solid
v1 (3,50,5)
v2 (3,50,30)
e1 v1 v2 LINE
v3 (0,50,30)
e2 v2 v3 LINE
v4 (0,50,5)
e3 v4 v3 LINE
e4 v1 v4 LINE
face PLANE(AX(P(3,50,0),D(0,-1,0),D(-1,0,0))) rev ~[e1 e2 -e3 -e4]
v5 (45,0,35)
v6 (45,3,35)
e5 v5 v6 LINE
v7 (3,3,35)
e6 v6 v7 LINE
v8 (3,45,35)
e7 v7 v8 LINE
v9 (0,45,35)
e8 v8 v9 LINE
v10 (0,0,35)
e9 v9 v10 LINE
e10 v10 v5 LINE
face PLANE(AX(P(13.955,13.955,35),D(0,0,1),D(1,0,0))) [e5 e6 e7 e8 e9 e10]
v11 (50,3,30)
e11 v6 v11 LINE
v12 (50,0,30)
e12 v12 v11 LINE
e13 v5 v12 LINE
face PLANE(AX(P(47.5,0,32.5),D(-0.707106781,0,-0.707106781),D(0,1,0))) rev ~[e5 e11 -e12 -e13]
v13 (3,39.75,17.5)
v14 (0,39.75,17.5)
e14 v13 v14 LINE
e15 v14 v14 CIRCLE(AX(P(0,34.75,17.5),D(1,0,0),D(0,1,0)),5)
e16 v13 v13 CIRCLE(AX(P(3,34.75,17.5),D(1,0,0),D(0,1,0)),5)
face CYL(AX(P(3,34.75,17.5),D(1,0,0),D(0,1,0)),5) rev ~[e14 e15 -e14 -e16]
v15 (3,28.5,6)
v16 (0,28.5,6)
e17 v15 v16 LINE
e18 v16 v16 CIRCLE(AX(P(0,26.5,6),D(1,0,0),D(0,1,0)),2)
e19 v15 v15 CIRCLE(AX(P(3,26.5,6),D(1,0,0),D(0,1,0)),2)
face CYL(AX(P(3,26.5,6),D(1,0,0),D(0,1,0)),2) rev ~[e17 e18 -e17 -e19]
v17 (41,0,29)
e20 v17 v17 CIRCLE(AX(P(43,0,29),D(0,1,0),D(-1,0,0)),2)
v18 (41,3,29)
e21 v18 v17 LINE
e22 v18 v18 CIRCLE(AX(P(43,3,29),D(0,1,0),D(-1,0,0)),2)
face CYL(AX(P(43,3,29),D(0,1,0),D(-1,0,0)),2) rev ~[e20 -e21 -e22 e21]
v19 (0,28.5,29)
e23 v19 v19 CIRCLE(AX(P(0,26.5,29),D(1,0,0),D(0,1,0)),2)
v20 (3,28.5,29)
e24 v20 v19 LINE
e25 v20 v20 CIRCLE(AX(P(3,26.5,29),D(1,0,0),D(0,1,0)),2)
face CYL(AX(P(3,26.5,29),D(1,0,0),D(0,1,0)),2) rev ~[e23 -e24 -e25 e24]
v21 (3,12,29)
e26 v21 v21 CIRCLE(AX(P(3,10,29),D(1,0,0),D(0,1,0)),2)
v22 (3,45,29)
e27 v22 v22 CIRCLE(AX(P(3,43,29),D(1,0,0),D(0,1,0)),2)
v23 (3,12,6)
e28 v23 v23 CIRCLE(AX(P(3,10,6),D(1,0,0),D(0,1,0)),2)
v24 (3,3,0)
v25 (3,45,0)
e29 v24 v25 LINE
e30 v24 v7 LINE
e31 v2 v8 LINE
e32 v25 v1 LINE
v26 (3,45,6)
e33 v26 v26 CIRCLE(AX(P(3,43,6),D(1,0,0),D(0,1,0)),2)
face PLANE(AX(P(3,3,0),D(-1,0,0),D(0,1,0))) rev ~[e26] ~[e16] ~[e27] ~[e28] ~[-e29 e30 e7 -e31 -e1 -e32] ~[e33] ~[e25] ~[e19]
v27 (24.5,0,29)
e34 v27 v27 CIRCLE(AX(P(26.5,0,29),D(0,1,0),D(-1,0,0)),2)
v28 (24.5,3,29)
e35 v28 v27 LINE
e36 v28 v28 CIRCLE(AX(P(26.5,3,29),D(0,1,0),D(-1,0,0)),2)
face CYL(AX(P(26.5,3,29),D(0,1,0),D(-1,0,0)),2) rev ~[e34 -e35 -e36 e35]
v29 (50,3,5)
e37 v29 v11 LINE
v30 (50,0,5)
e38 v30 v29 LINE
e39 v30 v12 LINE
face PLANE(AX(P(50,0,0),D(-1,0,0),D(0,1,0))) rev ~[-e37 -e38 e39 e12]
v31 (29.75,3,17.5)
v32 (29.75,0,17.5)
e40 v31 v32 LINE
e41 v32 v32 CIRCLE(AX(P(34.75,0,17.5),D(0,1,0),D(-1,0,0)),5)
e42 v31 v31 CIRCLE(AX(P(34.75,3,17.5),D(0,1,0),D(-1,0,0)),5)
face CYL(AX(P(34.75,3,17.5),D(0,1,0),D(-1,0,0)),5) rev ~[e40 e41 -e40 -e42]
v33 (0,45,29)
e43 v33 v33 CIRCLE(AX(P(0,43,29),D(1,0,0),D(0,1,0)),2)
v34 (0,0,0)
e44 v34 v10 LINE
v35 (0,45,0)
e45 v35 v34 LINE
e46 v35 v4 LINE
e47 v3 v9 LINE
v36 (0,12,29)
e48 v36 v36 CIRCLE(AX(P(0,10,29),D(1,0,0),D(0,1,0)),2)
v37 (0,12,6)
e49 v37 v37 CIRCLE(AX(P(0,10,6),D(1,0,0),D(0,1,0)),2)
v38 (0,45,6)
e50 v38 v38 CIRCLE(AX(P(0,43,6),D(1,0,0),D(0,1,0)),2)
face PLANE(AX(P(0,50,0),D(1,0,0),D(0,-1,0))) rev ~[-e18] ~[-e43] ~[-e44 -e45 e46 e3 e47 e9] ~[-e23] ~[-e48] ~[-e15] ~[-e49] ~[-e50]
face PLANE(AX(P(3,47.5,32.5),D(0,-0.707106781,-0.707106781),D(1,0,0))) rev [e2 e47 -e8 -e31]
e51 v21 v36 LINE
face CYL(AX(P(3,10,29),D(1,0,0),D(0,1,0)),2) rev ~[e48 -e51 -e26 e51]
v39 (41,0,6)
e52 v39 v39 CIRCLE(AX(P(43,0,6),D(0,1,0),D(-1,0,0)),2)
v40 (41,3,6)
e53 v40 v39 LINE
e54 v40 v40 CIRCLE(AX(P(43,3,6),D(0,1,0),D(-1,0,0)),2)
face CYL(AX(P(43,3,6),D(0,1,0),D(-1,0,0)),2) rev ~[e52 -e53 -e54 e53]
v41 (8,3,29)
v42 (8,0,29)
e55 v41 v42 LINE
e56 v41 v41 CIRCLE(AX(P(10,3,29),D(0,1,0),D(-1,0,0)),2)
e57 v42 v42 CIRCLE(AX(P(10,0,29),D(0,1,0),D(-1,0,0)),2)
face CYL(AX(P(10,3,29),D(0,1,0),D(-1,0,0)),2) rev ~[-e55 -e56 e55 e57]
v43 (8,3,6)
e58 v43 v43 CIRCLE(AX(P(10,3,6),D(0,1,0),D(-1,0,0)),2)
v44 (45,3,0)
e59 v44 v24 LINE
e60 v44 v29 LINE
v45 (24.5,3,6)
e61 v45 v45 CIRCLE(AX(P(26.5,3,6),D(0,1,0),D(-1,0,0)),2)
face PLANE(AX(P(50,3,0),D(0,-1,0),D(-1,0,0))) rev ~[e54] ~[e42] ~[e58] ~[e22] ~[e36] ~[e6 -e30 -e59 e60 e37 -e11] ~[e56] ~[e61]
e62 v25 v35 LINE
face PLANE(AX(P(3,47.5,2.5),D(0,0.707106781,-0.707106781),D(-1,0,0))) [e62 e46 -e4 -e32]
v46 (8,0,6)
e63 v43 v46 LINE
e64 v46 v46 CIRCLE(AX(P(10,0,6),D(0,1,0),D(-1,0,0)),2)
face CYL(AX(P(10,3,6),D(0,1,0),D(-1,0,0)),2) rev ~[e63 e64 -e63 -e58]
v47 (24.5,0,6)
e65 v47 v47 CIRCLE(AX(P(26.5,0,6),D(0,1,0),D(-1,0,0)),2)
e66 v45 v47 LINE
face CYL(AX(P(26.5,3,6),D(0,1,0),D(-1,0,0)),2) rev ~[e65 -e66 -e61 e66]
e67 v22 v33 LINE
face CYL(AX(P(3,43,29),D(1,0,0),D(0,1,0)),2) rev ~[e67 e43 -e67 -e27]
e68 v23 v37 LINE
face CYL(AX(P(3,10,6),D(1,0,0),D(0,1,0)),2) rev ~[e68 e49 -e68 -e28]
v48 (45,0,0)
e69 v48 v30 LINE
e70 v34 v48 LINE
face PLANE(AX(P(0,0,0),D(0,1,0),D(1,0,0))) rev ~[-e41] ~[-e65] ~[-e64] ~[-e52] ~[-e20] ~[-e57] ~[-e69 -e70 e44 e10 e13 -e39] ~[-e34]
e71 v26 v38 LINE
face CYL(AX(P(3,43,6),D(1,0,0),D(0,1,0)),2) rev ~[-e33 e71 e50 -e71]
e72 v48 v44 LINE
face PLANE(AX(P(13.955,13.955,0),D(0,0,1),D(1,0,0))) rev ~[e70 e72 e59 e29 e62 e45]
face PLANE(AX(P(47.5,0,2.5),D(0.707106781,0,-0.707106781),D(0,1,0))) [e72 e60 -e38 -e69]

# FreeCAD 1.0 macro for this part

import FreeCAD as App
import Part
import Sketcher


def edges_at(feature, points):
    """Names of the edges that pass closest to the given points."""
    edges = feature.Shape.Edges
    near = lambda p: min(range(len(edges)), key=lambda i: edges[i].distToShape(Part.Vertex(*p))[0])
    return sorted({f"Edge{near(p) + 1}" for p in points})

doc = App.newDocument("Part")
params = doc.addObject("Spreadsheet::Sheet", "Params")
for row, (alias, value) in enumerate([
    ("sketch1_width", "50 mm"),
    ("sketch1_width2", "47 mm"),
    ("pad1_length", "35 mm"),
    ("sketch2_diameter", "10 mm"),
    ("sketch2_diameter2", "4 mm"),
    ("sketch3_diameter", "10 mm"),
    ("sketch3_diameter2", "4 mm"),
    ("chamfer_size", "5 mm"),
    ("chamfer2_size", "5 mm"),
], start=1):
    params.set(f"A{row}", alias)
    params.set(f"B{row}", "=" + value)
    params.setAlias(f"B{row}", alias)

body = doc.addObject("PartDesign::Body", "Body")

sketch1 = doc.addObject("Sketcher::SketchObject", "Sketch")
body.addObject(sketch1)
sketch1.AttachmentSupport = (doc.XY_Plane, [""])
sketch1.MapMode = "FlatFace"
sketch1.addGeometry([
    Part.LineSegment(App.Vector(0, 50, 0), App.Vector(0, 0, 0)),
    Part.LineSegment(App.Vector(0, 0, 0), App.Vector(50, 0, 0)),
    Part.LineSegment(App.Vector(50, 0, 0), App.Vector(50, 3, 0)),
    Part.LineSegment(App.Vector(50, 3, 0), App.Vector(3, 3, 0)),
    Part.LineSegment(App.Vector(3, 3, 0), App.Vector(3, 50, 0)),
    Part.LineSegment(App.Vector(3, 50, 0), App.Vector(0, 50, 0)),
], False)
sketch1.addConstraint([
    Sketcher.Constraint("Coincident", 0, 2, 1, 1),
    Sketcher.Constraint("Coincident", 1, 2, 2, 1),
    Sketcher.Constraint("Coincident", 2, 2, 3, 1),
    Sketcher.Constraint("Coincident", 3, 2, 4, 1),
    Sketcher.Constraint("Coincident", 4, 2, 5, 1),
    Sketcher.Constraint("Coincident", 5, 2, 0, 1),
    Sketcher.Constraint("Vertical", 0),
    Sketcher.Constraint("Horizontal", 1),
    Sketcher.Constraint("Vertical", 2),
    Sketcher.Constraint("Horizontal", 3),
    Sketcher.Constraint("Vertical", 4),
    Sketcher.Constraint("Horizontal", 5),
    Sketcher.Constraint("Coincident", 0, 2, -1, 1),
    Sketcher.Constraint("Equal", 1, 0),
    Sketcher.Constraint("Equal", 5, 2),
    Sketcher.Constraint("DistanceX", 1, 1, 1, 2, 50.0),
    Sketcher.Constraint("DistanceX", 3, 2, 3, 1, 47.0),
])
sketch1.setExpression("Constraints[15]", "Params.sketch1_width")
sketch1.setExpression("Constraints[16]", "Params.sketch1_width2")
pad1 = doc.addObject("PartDesign::Pad", "Pad")
body.addObject(pad1)
pad1.Profile = sketch1
pad1.setExpression("Length", "Params.pad1_length")

sketch2 = doc.addObject("Sketcher::SketchObject", "Sketch001")
body.addObject(sketch2)
sketch2.AttachmentSupport = (doc.XZ_Plane, [""])
sketch2.MapMode = "FlatFace"
sketch2.AttachmentOffset = App.Placement(App.Vector(0, 0, -3), App.Rotation())
sketch2.addGeometry([
    Part.Circle(App.Vector(34.8, 17.5, 0), App.Vector(0, 0, 1), 5),
    Part.Circle(App.Vector(43, 29, 0), App.Vector(0, 0, 1), 2),
    Part.Circle(App.Vector(26.5, 29, 0), App.Vector(0, 0, 1), 2),
    Part.Circle(App.Vector(10, 29, 0), App.Vector(0, 0, 1), 2),
    Part.Circle(App.Vector(43, 6, 0), App.Vector(0, 0, 1), 2),
    Part.Circle(App.Vector(26.5, 6, 0), App.Vector(0, 0, 1), 2),
    Part.Circle(App.Vector(10, 6, 0), App.Vector(0, 0, 1), 2),
], False)
sketch2.addConstraint([
    Sketcher.Constraint("Equal", 1, 2),
    Sketcher.Constraint("Equal", 2, 3),
    Sketcher.Constraint("Equal", 3, 4),
    Sketcher.Constraint("Equal", 4, 5),
    Sketcher.Constraint("Equal", 5, 6),
    Sketcher.Constraint("Horizontal", 1, 3, 2, 3),
    Sketcher.Constraint("Horizontal", 2, 3, 3, 3),
    Sketcher.Constraint("Horizontal", 4, 3, 5, 3),
    Sketcher.Constraint("Horizontal", 5, 3, 6, 3),
    Sketcher.Constraint("Vertical", 1, 3, 4, 3),
    Sketcher.Constraint("Vertical", 2, 3, 5, 3),
    Sketcher.Constraint("Vertical", 3, 3, 6, 3),
    Sketcher.Constraint("Diameter", 0, 10.0),
    Sketcher.Constraint("Diameter", 1, 4.0),
    Sketcher.Constraint("DistanceX", -1, 1, 1, 3, 43.0),
    Sketcher.Constraint("DistanceY", -1, 1, 1, 3, 29.0),
    Sketcher.Constraint("DistanceX", -1, 1, 3, 3, 10.0),
    Sketcher.Constraint("DistanceY", -1, 1, 4, 3, 6.0),
    Sketcher.Constraint("DistanceY", -1, 1, 0, 3, 17.5),
    Sketcher.Constraint("DistanceX", -1, 1, 2, 3, 26.5),
    Sketcher.Constraint("DistanceX", -1, 1, 0, 3, 34.75),
])
sketch2.setExpression("Constraints[12]", "Params.sketch2_diameter")
sketch2.setExpression("Constraints[13]", "Params.sketch2_diameter2")
pocket1 = doc.addObject("PartDesign::Pocket", "Pocket")
body.addObject(pocket1)
pocket1.Profile = sketch2
pocket1.Type = "ThroughAll"
pocket1.Reversed = True

sketch3 = doc.addObject("Sketcher::SketchObject", "Sketch002")
body.addObject(sketch3)
sketch3.AttachmentSupport = (doc.YZ_Plane, [""])
sketch3.MapMode = "FlatFace"
sketch3.AttachmentOffset = App.Placement(App.Vector(0, 0, 3), App.Rotation())
sketch3.addGeometry([
    Part.Circle(App.Vector(34.8, 17.5, 0), App.Vector(0, 0, 1), 5),
    Part.Circle(App.Vector(10, 29, 0), App.Vector(0, 0, 1), 2),
    Part.Circle(App.Vector(26.5, 29, 0), App.Vector(0, 0, 1), 2),
    Part.Circle(App.Vector(43, 29, 0), App.Vector(0, 0, 1), 2),
    Part.Circle(App.Vector(10, 6, 0), App.Vector(0, 0, 1), 2),
    Part.Circle(App.Vector(26.5, 6, 0), App.Vector(0, 0, 1), 2),
    Part.Circle(App.Vector(43, 6, 0), App.Vector(0, 0, 1), 2),
], False)
sketch3.addConstraint([
    Sketcher.Constraint("Equal", 1, 2),
    Sketcher.Constraint("Equal", 2, 3),
    Sketcher.Constraint("Equal", 3, 4),
    Sketcher.Constraint("Equal", 4, 5),
    Sketcher.Constraint("Equal", 5, 6),
    Sketcher.Constraint("Horizontal", 1, 3, 2, 3),
    Sketcher.Constraint("Horizontal", 2, 3, 3, 3),
    Sketcher.Constraint("Horizontal", 4, 3, 5, 3),
    Sketcher.Constraint("Horizontal", 5, 3, 6, 3),
    Sketcher.Constraint("Vertical", 1, 3, 4, 3),
    Sketcher.Constraint("Vertical", 2, 3, 5, 3),
    Sketcher.Constraint("Vertical", 3, 3, 6, 3),
    Sketcher.Constraint("Diameter", 0, 10.0),
    Sketcher.Constraint("Diameter", 1, 4.0),
    Sketcher.Constraint("DistanceX", -1, 1, 1, 3, 10.0),
    Sketcher.Constraint("DistanceY", -1, 1, 1, 3, 29.0),
    Sketcher.Constraint("DistanceX", -1, 1, 3, 3, 43.0),
    Sketcher.Constraint("DistanceY", -1, 1, 4, 3, 6.0),
    Sketcher.Constraint("DistanceY", -1, 1, 0, 3, 17.5),
    Sketcher.Constraint("DistanceX", -1, 1, 2, 3, 26.5),
    Sketcher.Constraint("DistanceX", -1, 1, 0, 3, 34.75),
])
sketch3.setExpression("Constraints[12]", "Params.sketch3_diameter")
sketch3.setExpression("Constraints[13]", "Params.sketch3_diameter2")
pocket2 = doc.addObject("PartDesign::Pocket", "Pocket001")
body.addObject(pocket2)
pocket2.Profile = sketch3
pocket2.Type = "ThroughAll"
doc.recompute()

chamfer = doc.addObject("PartDesign::Chamfer", "Chamfer")
body.addObject(chamfer)
chamfer.Base = (pocket2, edges_at(pocket2, [(50, 1.5, 35), (50, 1.5, 0)]))
chamfer.setExpression("Size", "Params.chamfer_size")
doc.recompute()

chamfer2 = doc.addObject("PartDesign::Chamfer", "Chamfer001")
body.addObject(chamfer2)
chamfer2.Base = (chamfer, edges_at(chamfer, [(1.5, 50, 35), (1.5, 50, 0)]))
chamfer2.setExpression("Size", "Params.chamfer2_size")

doc.recompute()
